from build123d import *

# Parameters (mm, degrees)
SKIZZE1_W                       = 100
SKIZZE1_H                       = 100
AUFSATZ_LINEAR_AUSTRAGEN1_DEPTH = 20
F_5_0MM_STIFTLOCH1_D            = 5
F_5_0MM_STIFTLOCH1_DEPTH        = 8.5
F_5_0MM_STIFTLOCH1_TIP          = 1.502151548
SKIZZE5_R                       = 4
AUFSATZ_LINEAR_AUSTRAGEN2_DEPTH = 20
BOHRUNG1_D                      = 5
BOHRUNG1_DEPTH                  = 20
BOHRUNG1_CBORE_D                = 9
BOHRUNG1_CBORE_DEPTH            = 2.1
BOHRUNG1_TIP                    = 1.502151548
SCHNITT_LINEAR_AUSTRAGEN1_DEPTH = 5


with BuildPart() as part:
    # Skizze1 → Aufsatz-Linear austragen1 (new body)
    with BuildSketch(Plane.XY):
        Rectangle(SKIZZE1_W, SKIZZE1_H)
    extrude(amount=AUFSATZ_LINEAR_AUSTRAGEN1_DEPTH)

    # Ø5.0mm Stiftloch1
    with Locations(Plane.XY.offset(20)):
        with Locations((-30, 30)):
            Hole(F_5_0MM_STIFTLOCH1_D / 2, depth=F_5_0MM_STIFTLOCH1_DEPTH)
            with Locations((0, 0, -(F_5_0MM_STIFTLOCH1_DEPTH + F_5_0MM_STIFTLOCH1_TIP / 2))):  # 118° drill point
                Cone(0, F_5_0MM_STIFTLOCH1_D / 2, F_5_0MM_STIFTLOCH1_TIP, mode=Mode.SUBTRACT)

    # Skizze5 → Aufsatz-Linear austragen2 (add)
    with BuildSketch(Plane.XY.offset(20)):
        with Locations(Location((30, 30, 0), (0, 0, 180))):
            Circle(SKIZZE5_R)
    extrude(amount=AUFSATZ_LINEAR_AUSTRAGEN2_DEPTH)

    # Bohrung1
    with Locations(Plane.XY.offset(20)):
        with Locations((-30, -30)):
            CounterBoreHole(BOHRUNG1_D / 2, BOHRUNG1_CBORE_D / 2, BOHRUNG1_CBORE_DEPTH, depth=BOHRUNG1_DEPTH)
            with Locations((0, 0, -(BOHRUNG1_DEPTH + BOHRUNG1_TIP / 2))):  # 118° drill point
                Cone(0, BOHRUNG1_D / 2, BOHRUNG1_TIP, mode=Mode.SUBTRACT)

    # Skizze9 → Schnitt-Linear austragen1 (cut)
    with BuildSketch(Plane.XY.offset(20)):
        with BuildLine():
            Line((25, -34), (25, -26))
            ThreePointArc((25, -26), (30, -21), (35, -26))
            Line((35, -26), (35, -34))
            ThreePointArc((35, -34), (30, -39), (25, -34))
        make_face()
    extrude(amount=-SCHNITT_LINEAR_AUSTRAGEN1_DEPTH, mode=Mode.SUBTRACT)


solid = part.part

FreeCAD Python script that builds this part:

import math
import FreeCAD as App
import Part
import Sketcher

doc = App.newDocument("Part")
body = doc.addObject("PartDesign::Body", "Body")

# Sketch on XY plane
sketch1 = doc.addObject("Sketcher::SketchObject", "Sketch")
body.addObject(sketch1)
sketch1.AttachmentSupport = (doc.XY_Plane, [""])
sketch1.MapMode = "FlatFace"
sketch1.addGeometry(Part.LineSegment(App.Vector(-50, 50, 0), App.Vector(-50, -50, 0)), False)
sketch1.addGeometry(Part.LineSegment(App.Vector(-50, -50, 0), App.Vector(50, -50, 0)), False)
sketch1.addGeometry(Part.LineSegment(App.Vector(50, -50, 0), App.Vector(50, 50, 0)), False)
sketch1.addGeometry(Part.LineSegment(App.Vector(50, 50, 0), App.Vector(-50, 50, 0)), False)
sketch1.addConstraint(Sketcher.Constraint("Coincident", 0, 2, 1, 1))
sketch1.addConstraint(Sketcher.Constraint("Coincident", 1, 2, 2, 1))
sketch1.addConstraint(Sketcher.Constraint("Coincident", 2, 2, 3, 1))
sketch1.addConstraint(Sketcher.Constraint("Coincident", 3, 2, 0, 1))
sketch1.addConstraint(Sketcher.Constraint("Vertical", 0))
sketch1.addConstraint(Sketcher.Constraint("Horizontal", 1))
sketch1.addConstraint(Sketcher.Constraint("Vertical", 2))
sketch1.addConstraint(Sketcher.Constraint("Horizontal", 3))
sketch1.addConstraint(Sketcher.Constraint("Symmetric", 0, 2, 2, 2, -1, 1))
sketch1.addConstraint(Sketcher.Constraint("Equal", 3, 0))
sketch1.addConstraint(Sketcher.Constraint("DistanceX", 1, 1, 1, 2, 100.0))
pad1 = doc.addObject("PartDesign::Pad", "Pad")
body.addObject(pad1)
pad1.Profile = sketch1
pad1.Length = 20

# Sketch on XY plane
sketch2 = doc.addObject("Sketcher::SketchObject", "Sketch001")
body.addObject(sketch2)
sketch2.AttachmentSupport = (doc.XY_Plane, [""])
sketch2.MapMode = "FlatFace"
sketch2.AttachmentOffset = App.Placement(App.Vector(0, 0, 20), App.Rotation())
sketch2.addGeometry(Part.Circle(App.Vector(-30, 30, 0), App.Vector(0, 0, 1), 2.5), False)
sketch2.addConstraint(Sketcher.Constraint("Diameter", 0, 5.0))
sketch2.addConstraint(Sketcher.Constraint("DistanceX", 0, 3, -1, 1, 30.0))
sketch2.addConstraint(Sketcher.Constraint("DistanceY", -1, 1, 0, 3, 30.0))
doc.recompute()
hole = doc.addObject("PartDesign::Hole", "Hole")
body.addObject(hole)
hole.Profile = sketch2
hole.ThreadType = "None"
hole.Diameter = 5
hole.DepthType = "Dimension"
hole.Depth = 8.5
hole.DrillPoint = "Angled"
hole.DrillPointAngle = 118

# Sketch on XY plane
sketch3 = doc.addObject("Sketcher::SketchObject", "Sketch002")
body.addObject(sketch3)
sketch3.AttachmentSupport = (doc.XY_Plane, [""])
sketch3.MapMode = "FlatFace"
sketch3.AttachmentOffset = App.Placement(App.Vector(0, 0, 20), App.Rotation())
sketch3.addGeometry(Part.Circle(App.Vector(30, 30, 0), App.Vector(0, 0, 1), 4), False)
sketch3.addConstraint(Sketcher.Constraint("Diameter", 0, 8.0))
sketch3.addConstraint(Sketcher.Constraint("DistanceX", -1, 1, 0, 3, 30.0))
sketch3.addConstraint(Sketcher.Constraint("DistanceY", -1, 1, 0, 3, 30.0))
pad2 = doc.addObject("PartDesign::Pad", "Pad001")
body.addObject(pad2)
pad2.Profile = sketch3
pad2.Length = 20

# Sketch on XY plane
sketch4 = doc.addObject("Sketcher::SketchObject", "Sketch003")
body.addObject(sketch4)
sketch4.AttachmentSupport = (doc.XY_Plane, [""])
sketch4.MapMode = "FlatFace"
sketch4.AttachmentOffset = App.Placement(App.Vector(0, 0, 20), App.Rotation())
sketch4.addGeometry(Part.Circle(App.Vector(-30, -30, 0), App.Vector(0, 0, 1), 2.5), False)
sketch4.addConstraint(Sketcher.Constraint("Diameter", 0, 5.0))
sketch4.addConstraint(Sketcher.Constraint("DistanceX", 0, 3, -1, 1, 30.0))
sketch4.addConstraint(Sketcher.Constraint("DistanceY", 0, 3, -1, 1, 30.0))
doc.recompute()
hole2 = doc.addObject("PartDesign::Hole", "Hole001")
body.addObject(hole2)
hole2.Profile = sketch4
hole2.ThreadType = "None"
hole2.Diameter = 5
hole2.DepthType = "Dimension"
hole2.Depth = 20
hole2.DrillPoint = "Angled"
hole2.DrillPointAngle = 118
hole2.HoleCutType = "Counterbore"
hole2.HoleCutDiameter = 9
hole2.HoleCutDepth = 2.1

# Sketch on XY plane
sketch5 = doc.addObject("Sketcher::SketchObject", "Sketch004")
body.addObject(sketch5)
sketch5.AttachmentSupport = (doc.XY_Plane, [""])
sketch5.MapMode = "FlatFace"
sketch5.AttachmentOffset = App.Placement(App.Vector(0, 0, 20), App.Rotation())
sketch5.addGeometry(Part.LineSegment(App.Vector(25, -26, 0), App.Vector(25, -34, 0)), False)
sketch5.addGeometry(Part.ArcOfCircle(Part.Circle(App.Vector(30, -34, 0), App.Vector(0, 0, 1), 5), math.radians(180), math.radians(360)), False)
sketch5.addGeometry(Part.LineSegment(App.Vector(35, -34, 0), App.Vector(35, -26, 0)), False)
sketch5.addGeometry(Part.ArcOfCircle(Part.Circle(App.Vector(30, -26, 0), App.Vector(0, 0, 1), 5), math.radians(0), math.radians(180)), False)
sketch5.addConstraint(Sketcher.Constraint("Tangent", 0, 2, 1, 1))
sketch5.addConstraint(Sketcher.Constraint("Tangent", 1, 2, 2, 1))
sketch5.addConstraint(Sketcher.Constraint("Tangent", 2, 2, 3, 1))
sketch5.addConstraint(Sketcher.Constraint("Tangent", 3, 2, 0, 1))
sketch5.addConstraint(Sketcher.Constraint("Vertical", 0))
sketch5.addConstraint(Sketcher.Constraint("Vertical", 2))
sketch5.addConstraint(Sketcher.Constraint("Radius", 1, 5.0))
sketch5.addConstraint(Sketcher.Constraint("DistanceY", 0, 2, 0, 1, 8.0))
sketch5.addConstraint(Sketcher.Constraint("DistanceX", -1, 1, 1, 3, 30.0))
sketch5.addConstraint(Sketcher.Constraint("DistanceY", 1, 3, -1, 1, 34.0))
pocket1 = doc.addObject("PartDesign::Pocket", "Pocket")
body.addObject(pocket1)
pocket1.Profile = sketch5
pocket1.Length = 5

doc.recompute()
